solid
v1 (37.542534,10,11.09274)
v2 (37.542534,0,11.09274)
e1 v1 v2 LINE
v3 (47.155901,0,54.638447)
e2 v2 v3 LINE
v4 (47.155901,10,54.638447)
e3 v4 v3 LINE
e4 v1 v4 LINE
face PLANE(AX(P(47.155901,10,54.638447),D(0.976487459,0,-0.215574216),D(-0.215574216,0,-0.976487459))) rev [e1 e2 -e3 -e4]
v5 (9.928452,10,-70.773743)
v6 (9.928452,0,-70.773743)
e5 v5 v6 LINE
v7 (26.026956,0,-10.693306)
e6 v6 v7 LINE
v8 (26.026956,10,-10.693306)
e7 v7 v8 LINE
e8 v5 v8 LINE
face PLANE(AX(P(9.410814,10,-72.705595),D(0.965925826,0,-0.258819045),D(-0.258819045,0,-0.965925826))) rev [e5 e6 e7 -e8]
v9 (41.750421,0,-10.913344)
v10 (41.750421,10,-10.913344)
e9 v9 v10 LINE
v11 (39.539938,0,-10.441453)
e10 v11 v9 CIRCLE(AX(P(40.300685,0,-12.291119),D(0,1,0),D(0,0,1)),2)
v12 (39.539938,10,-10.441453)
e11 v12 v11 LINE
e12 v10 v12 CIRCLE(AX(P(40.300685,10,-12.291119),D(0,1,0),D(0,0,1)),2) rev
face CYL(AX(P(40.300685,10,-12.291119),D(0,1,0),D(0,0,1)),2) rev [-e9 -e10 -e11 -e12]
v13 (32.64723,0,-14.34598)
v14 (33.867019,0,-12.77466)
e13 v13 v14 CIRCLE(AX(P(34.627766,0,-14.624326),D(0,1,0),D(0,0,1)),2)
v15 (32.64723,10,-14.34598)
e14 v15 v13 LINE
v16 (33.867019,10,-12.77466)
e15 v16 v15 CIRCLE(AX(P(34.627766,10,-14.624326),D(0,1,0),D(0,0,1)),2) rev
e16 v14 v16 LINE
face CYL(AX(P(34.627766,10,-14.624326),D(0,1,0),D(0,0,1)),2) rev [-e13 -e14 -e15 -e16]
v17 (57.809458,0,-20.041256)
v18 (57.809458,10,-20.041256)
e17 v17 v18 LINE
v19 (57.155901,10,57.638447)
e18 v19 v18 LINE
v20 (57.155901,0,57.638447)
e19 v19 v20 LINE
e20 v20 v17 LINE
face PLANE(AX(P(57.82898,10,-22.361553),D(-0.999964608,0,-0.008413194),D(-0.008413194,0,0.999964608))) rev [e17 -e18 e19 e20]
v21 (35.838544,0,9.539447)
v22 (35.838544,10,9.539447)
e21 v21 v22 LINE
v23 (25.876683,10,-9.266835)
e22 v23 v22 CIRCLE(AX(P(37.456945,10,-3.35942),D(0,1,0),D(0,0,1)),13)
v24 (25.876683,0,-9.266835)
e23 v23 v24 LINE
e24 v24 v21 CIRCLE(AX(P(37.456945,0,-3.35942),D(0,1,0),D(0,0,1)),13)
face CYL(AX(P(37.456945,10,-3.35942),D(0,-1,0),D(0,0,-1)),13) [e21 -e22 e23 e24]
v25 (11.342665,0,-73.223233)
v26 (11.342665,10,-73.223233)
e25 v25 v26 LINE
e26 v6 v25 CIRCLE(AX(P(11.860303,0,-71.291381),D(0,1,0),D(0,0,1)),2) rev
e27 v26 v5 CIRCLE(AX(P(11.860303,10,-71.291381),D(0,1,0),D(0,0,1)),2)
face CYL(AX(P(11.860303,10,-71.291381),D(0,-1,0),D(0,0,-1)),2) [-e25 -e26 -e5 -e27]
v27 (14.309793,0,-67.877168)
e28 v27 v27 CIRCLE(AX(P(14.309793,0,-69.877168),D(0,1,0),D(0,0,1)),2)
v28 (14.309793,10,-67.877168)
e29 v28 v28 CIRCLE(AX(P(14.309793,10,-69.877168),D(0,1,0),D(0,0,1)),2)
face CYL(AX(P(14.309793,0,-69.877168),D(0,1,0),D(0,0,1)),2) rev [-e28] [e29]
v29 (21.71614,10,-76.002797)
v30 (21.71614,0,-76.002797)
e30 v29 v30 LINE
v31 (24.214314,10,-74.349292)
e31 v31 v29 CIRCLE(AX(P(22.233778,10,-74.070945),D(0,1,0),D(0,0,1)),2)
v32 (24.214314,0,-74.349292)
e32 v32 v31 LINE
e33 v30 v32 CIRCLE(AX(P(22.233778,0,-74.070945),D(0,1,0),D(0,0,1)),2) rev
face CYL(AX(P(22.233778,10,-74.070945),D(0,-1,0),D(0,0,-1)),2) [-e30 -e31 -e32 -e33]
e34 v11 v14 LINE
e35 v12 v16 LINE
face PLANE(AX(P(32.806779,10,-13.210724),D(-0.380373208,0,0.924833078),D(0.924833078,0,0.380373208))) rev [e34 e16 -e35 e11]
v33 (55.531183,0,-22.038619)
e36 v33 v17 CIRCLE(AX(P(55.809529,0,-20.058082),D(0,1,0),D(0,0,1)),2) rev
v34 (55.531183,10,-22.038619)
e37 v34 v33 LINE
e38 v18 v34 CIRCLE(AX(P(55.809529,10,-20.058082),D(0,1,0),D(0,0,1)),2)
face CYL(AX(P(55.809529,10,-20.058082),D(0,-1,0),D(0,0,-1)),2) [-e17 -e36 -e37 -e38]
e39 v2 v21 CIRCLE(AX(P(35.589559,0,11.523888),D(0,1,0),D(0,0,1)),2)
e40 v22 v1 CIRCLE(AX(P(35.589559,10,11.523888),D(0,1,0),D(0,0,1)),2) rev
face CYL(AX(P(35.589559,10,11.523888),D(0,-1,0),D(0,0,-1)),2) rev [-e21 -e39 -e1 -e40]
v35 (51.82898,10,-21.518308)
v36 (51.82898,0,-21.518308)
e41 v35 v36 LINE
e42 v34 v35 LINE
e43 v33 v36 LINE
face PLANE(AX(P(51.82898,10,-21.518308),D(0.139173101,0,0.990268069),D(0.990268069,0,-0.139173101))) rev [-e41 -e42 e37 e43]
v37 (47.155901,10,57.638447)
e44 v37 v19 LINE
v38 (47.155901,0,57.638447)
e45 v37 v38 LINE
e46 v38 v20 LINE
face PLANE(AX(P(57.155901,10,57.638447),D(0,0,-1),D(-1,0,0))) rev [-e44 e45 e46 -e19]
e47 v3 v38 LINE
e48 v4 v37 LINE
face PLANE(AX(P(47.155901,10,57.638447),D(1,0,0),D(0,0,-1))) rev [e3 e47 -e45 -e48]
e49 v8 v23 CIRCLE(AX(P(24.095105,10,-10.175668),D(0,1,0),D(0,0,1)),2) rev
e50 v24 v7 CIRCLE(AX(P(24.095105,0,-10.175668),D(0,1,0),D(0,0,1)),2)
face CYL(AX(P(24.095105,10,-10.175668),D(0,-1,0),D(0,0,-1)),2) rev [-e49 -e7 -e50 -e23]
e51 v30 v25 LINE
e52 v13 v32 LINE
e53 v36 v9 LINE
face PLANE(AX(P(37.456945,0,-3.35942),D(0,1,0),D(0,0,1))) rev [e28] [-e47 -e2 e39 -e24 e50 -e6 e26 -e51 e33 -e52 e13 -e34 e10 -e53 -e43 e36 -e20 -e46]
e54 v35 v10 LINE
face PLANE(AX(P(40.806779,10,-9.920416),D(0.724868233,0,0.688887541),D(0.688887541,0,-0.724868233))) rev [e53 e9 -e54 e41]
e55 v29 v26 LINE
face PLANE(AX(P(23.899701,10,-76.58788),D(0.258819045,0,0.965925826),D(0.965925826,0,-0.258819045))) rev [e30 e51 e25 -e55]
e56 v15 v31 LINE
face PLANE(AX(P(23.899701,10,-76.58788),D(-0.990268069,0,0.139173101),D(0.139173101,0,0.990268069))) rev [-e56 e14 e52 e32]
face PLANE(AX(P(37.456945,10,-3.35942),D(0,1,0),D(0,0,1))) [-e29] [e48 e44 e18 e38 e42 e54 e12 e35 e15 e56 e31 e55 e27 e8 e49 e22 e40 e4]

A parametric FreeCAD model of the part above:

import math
import FreeCAD as App
import Part
import Sketcher
Q = App.Units.Quantity


def edges_at(feature, points):
    """Names of the edges that pass closest to the given points."""
    edges = feature.Shape.Edges
    near = lambda p: min(range(len(edges)), key=lambda i: edges[i].distToShape(Part.Vertex(*p))[0])
    return sorted({f"Edge{near(p) + 1}" for p in points})

doc = App.newDocument("Part")
params = doc.addObject("Spreadsheet::Sheet", "Params")
for row, (alias, value) in enumerate([
    ("sketch1_radius", "13 mm"),
    ("sketch1_width", "10 mm"),
    ("sketch1_height", "3 mm"),
    ("sketch1_length", "15 mm"),
    ("sketch1_length2", "65 mm"),
    ("pad1_length", "10 mm"),
    ("sketch2_diameter", "4 mm"),
    ("fillet_radius", "2 mm"),
], start=1):
    params.set(f"A{row}", alias)
    params.set(f"B{row}", "=" + value)
    params.setAlias(f"B{row}", alias)

body = doc.addObject("PartDesign::Body", "Body")

# Sketch on XZ plane
sketch1 = doc.addObject("Sketcher::SketchObject", "Sketch")
body.addObject(sketch1)
sketch1.AttachmentSupport = (doc.XZ_Plane, [""])
sketch1.MapMode = "FlatFace"
sketch1.addGeometry([
    Part.LineSegment(App.Vector(23.899701, -76.58788, 0), App.Vector(9.410814, -72.705595, 0)),  # 0
    Part.LineSegment(App.Vector(9.410814, -72.705595, 0), App.Vector(26.234052, -9.920416, 0)),  # 1
    Part.ArcOfCircle(Part.Circle(App.Vector(37.456945, -3.35942, 0), App.Vector(0, 0, 1), 13), math.radians(91.037848), math.radians(210.310908)),  # 2
    Part.LineSegment(App.Vector(37.221477, 9.638447, 0), App.Vector(47.155901, 54.638447, 0)),  # 3
    Part.LineSegment(App.Vector(47.155901, 54.638447, 0), App.Vector(47.155901, 57.638447, 0)),  # 4
    Part.LineSegment(App.Vector(47.155901, 57.638447, 0), App.Vector(57.155901, 57.638447, 0)),  # 5
    Part.LineSegment(App.Vector(57.155901, 57.638447, 0), App.Vector(57.82898, -22.361553, 0)),  # 6
    Part.LineSegment(App.Vector(57.82898, -22.361553, 0), App.Vector(51.82898, -21.518308, 0)),  # 7
    Part.LineSegment(App.Vector(51.82898, -21.518308, 0), App.Vector(40.806779, -9.920416, 0)),  # 8
    Part.LineSegment(App.Vector(40.806779, -9.920416, 0), App.Vector(32.806779, -13.210724, 0)),  # 9
    Part.LineSegment(App.Vector(32.806779, -13.210724, 0), App.Vector(23.899701, -76.58788, 0)),  # 10
], False)
sketch1.addConstraint([
    Sketcher.Constraint("Coincident", 0, 2, 1, 1),
    Sketcher.Constraint("Coincident", 1, 2, 2, 2),
    Sketcher.Constraint("Coincident", 2, 1, 3, 1),
    Sketcher.Constraint("Coincident", 3, 2, 4, 1),
    Sketcher.Constraint("Coincident", 4, 2, 5, 1),
    Sketcher.Constraint("Coincident", 5, 2, 6, 1),
    Sketcher.Constraint("Coincident", 6, 2, 7, 1),
    Sketcher.Constraint("Coincident", 7, 2, 8, 1),
    Sketcher.Constraint("Coincident", 8, 2, 9, 1),
    Sketcher.Constraint("Coincident", 9, 2, 10, 1),
    Sketcher.Constraint("Coincident", 10, 2, 0, 1),
    Sketcher.Constraint("Vertical", 4),
    Sketcher.Constraint("Horizontal", 5),
    Sketcher.Constraint("Perpendicular", 0, 1),
    Sketcher.Constraint("Perpendicular", 7, 10),
    Sketcher.Constraint("Horizontal", 1, 2, 8, 2),
    Sketcher.Constraint("Radius", 2, 13.0),
    Sketcher.Constraint("DistanceX", 5, 1, 5, 2, 10.0),
    Sketcher.Constraint("DistanceY", 4, 1, 4, 2, 3.0),
    Sketcher.Constraint("Angle", 0, Q("165 deg")),
    Sketcher.Constraint("Angle", 7, Q("172 deg")),
    Sketcher.Constraint("Distance", 0, 15.0),
    Sketcher.Constraint("Distance", 1, 65.0),
    Sketcher.Constraint("Distance", 8, 16.0),
    Sketcher.Constraint("Distance", 10, 64.0),
    Sketcher.Constraint("DistanceY", 2, 1, 3, 2, 45.0),
    Sketcher.Constraint("DistanceY", 6, 2, 2, 1, 32.0),
    Sketcher.Constraint("DistanceX", 7, 2, 6, 2, 6.0),
    Sketcher.Constraint("DistanceX", 9, 2, 8, 2, 8.0),
    Sketcher.Constraint("DistanceX", -1, 1, 3, 2, 47.155901),
    Sketcher.Constraint("DistanceX", -1, 1, 10, 2, 23.899701),
    Sketcher.Constraint("DistanceX", 8, 2, 7, 2, 11.022201),
    Sketcher.Constraint("DistanceX", 2, 1, 8, 2, 3.585302),
    Sketcher.Constraint("DistanceY", 2, 3, -1, 1, 3.35942),
])
sketch1.setExpression("Constraints[16]", "Params.sketch1_radius")
sketch1.setExpression("Constraints[17]", "Params.sketch1_width")
sketch1.setExpression("Constraints[18]", "Params.sketch1_height")
sketch1.setExpression("Constraints[21]", "Params.sketch1_length")
sketch1.setExpression("Constraints[22]", "Params.sketch1_length2")
pad1 = doc.addObject("PartDesign::Pad", "Pad")
body.addObject(pad1)
pad1.Profile = sketch1
pad1.setExpression("Length", "Params.pad1_length")
pad1.Reversed = True

# Sketch on XZ plane
sketch2 = doc.addObject("Sketcher::SketchObject", "Sketch001")
body.addObject(sketch2)
sketch2.AttachmentSupport = (doc.XZ_Plane, [""])
sketch2.MapMode = "FlatFace"
sketch2.AttachmentOffset = App.Placement(App.Vector(0, 0, -10), App.Rotation())
sketch2.addGeometry(Part.Circle(App.Vector(14.309793, -69.877168, 0), App.Vector(0, 0, 1), 2), False)
sketch2.addConstraint([
    Sketcher.Constraint("Diameter", 0, 4.0),
    Sketcher.Constraint("DistanceX", -1, 1, 0, 3, 14.309793),
    Sketcher.Constraint("DistanceY", 0, 3, -1, 1, 69.877168),
])
sketch2.setExpression("Constraints[0]", "Params.sketch2_diameter")
pocket1 = doc.addObject("PartDesign::Pocket", "Pocket")
body.addObject(pocket1)
pocket1.Profile = sketch2
pocket1.Type = "ThroughAll"
pocket1.Reversed = True
doc.recompute()

fillet = doc.addObject("PartDesign::Fillet", "Fillet")
body.addObject(fillet)
fillet.Base = (pocket1, edges_at(pocket1, [
    (37.221, 5, 9.638),
    (26.234, 5, -9.92),
    (9.411, 5, -72.706),
    (23.9, 5, -76.588),
    (32.807, 5, -13.211),
    (40.807, 5, -9.92),
    (57.829, 5, -22.362),
]))
fillet.setExpression("Radius", "Params.fillet_radius")

doc.recompute()
